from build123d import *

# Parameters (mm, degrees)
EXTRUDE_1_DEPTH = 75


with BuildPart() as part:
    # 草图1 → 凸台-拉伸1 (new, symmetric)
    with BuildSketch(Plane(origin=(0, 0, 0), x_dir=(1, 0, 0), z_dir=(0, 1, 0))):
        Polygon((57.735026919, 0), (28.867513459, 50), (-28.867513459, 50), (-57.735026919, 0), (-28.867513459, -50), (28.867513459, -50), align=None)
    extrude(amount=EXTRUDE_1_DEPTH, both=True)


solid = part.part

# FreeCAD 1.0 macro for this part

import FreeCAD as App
import Part
import Sketcher
Q = App.Units.Quantity

doc = App.newDocument("Part")
body = doc.addObject("PartDesign::Body", "Body")

sketch1 = body.newObject("Sketcher::SketchObject", "Sketch")
sketch1.AttachmentSupport = (doc.getObject("XZ_Plane"), [""])
sketch1.MapMode = "FlatFace"
sketch1.addGeometry([
    Part.LineSegment(App.Vector(58, 0, 0), App.Vector(29, -50, 0)),
    Part.LineSegment(App.Vector(29, -50, 0), App.Vector(-29, -50, 0)),
    Part.LineSegment(App.Vector(-29, -50, 0), App.Vector(-58, 0, 0)),
    Part.LineSegment(App.Vector(-58, 0, 0), App.Vector(-29, 50, 0)),
    Part.LineSegment(App.Vector(-29, 50, 0), App.Vector(29, 50, 0)),
    Part.LineSegment(App.Vector(29, 50, 0), App.Vector(58, 0, 0)),
], False)
sketch1.addConstraint([
    Sketcher.Constraint("Coincident", 0, 2, 1, 1),
    Sketcher.Constraint("Coincident", 1, 2, 2, 1),
    Sketcher.Constraint("Coincident", 2, 2, 3, 1),
    Sketcher.Constraint("Coincident", 3, 2, 4, 1),
    Sketcher.Constraint("Coincident", 4, 2, 5, 1),
    Sketcher.Constraint("Coincident", 5, 2, 0, 1),
    Sketcher.Constraint("Horizontal", 1),
    Sketcher.Constraint("Horizontal", 4),
    Sketcher.Constraint("Symmetric", 0, 2, 3, 2, -1, 1),
    Sketcher.Constraint("Symmetric", 2, 2, 5, 2, -1, 1),
    Sketcher.Constraint("PointOnObject", 2, 2, -1),
    Sketcher.Constraint("Parallel", 2, 5),
    Sketcher.Constraint("Vertical", 1, 2, 3, 2),
    Sketcher.Constraint("Angle", 0, Q("-120 deg")),
    Sketcher.Constraint("DistanceY", 0, 2, -1, 1, Q("50 mm")),
    Sketcher.Constraint("DistanceX", 1, 2, 1, 1, Q("57.735027 mm")),
])
pad1 = body.newObject("PartDesign::Pad", "Pad")
pad1.Profile = sketch1
pad1.Length = 150
pad1.Midplane = True

doc.recompute()
